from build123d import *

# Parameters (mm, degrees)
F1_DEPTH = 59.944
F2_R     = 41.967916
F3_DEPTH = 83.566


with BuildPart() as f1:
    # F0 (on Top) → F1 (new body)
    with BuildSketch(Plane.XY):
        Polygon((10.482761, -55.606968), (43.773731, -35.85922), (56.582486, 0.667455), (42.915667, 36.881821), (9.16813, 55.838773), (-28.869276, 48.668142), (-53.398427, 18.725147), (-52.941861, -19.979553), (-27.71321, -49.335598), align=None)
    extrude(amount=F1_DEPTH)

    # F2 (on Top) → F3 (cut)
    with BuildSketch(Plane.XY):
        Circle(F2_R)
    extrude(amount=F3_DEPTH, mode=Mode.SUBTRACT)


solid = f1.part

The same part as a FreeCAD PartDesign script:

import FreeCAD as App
import Part
import Sketcher
from FreeCAD import Vector
Q = App.Units.Quantity

doc = App.newDocument("Part")
body = doc.addObject("PartDesign::Body", "Body")

sketch1 = body.newObject("Sketcher::SketchObject", "Sketch")
sketch1.AttachmentSupport = (doc.getObject("XY_Plane"), [""])
sketch1.MapMode = "FlatFace"
sketch1.addGeometry([
    Part.LineSegment(Vector(10.482761, -55.606968, 0), Vector(43.773731, -35.85922, 0)),
    Part.LineSegment(Vector(43.773731, -35.85922, 0), Vector(56.582486, 0.667455, 0)),
    Part.LineSegment(Vector(56.582486, 0.667455, 0), Vector(42.915667, 36.881821, 0)),
    Part.LineSegment(Vector(42.915667, 36.881821, 0), Vector(9.16813, 55.838773, 0)),
    Part.LineSegment(Vector(9.16813, 55.838773, 0), Vector(-28.869276, 48.668142, 0)),
    Part.LineSegment(Vector(-28.869276, 48.668142, 0), Vector(-53.398427, 18.725147, 0)),
    Part.LineSegment(Vector(-53.398427, 18.725147, 0), Vector(-52.941861, -19.979553, 0)),
    Part.LineSegment(Vector(-52.941861, -19.979553, 0), Vector(-27.71321, -49.335598, 0)),
    Part.LineSegment(Vector(-27.71321, -49.335598, 0), Vector(10.482761, -55.606968, 0)),
], False)
sketch1.addConstraint([
    Sketcher.Constraint("Coincident", 0, 2, 1, 1),
    Sketcher.Constraint("Coincident", 1, 2, 2, 1),
    Sketcher.Constraint("Coincident", 2, 2, 3, 1),
    Sketcher.Constraint("Coincident", 3, 2, 4, 1),
    Sketcher.Constraint("Coincident", 4, 2, 5, 1),
    Sketcher.Constraint("Coincident", 5, 2, 6, 1),
    Sketcher.Constraint("Coincident", 6, 2, 7, 1),
    Sketcher.Constraint("Coincident", 7, 2, 8, 1),
    Sketcher.Constraint("Coincident", 8, 2, 0, 1),
    Sketcher.Constraint("DistanceX", 3, 2, 0, 2, Q("34.605601 mm")),
    Sketcher.Constraint("DistanceY", 6, 2, 5, 2, Q("38.7047 mm")),
    Sketcher.Constraint("Distance", 1, Q("38.707392 mm")),
    Sketcher.Constraint("DistanceX", -1, 1, 0, 2, Q("43.773731 mm")),
    Sketcher.Constraint("DistanceY", 0, 2, -1, 1, Q("35.85922 mm")),
    Sketcher.Constraint("DistanceY", -1, 1, 2, 2, Q("36.881821 mm")),
    Sketcher.Constraint("DistanceX", 6, 2, -1, 1, Q("52.941861 mm")),
    Sketcher.Constraint("DistanceX", 7, 2, -1, 1, Q("27.71321 mm")),
    Sketcher.Constraint("DistanceX", -1, 1, 8, 2, Q("10.482761 mm")),
    Sketcher.Constraint("DistanceY", 8, 2, -1, 1, Q("55.606968 mm")),
    Sketcher.Constraint("DistanceX", 2, 2, 1, 2, Q("13.666819 mm")),
    Sketcher.Constraint("DistanceY", 1, 2, 3, 2, Q("55.171318 mm")),
    Sketcher.Constraint("DistanceY", 4, 2, 3, 2, Q("7.170631 mm")),
    Sketcher.Constraint("DistanceY", 2, 2, 4, 2, Q("11.786321 mm")),
    Sketcher.Constraint("DistanceX", 5, 2, 4, 2, Q("24.529151 mm")),
    Sketcher.Constraint("DistanceY", 1, 2, 5, 2, Q("18.057692 mm")),
    Sketcher.Constraint("DistanceY", 7, 2, 4, 2, Q("98.00374 mm")),
    Sketcher.Constraint("Distance", 4, Q("38.707392 mm")),
])
pad1 = body.newObject("PartDesign::Pad", "Pad")
pad1.Profile = sketch1
pad1.Length = Q("2.36 in")

sketch2 = body.newObject("Sketcher::SketchObject", "Sketch001")
sketch2.AttachmentSupport = (doc.getObject("XY_Plane"), [""])
sketch2.MapMode = "FlatFace"
sketch2.addGeometry(Part.Circle(Vector(0, 0, 0), Vector(0, 0, 1), 42), False)
sketch2.addConstraint([
    Sketcher.Constraint("Coincident", 0, 3, -1, 1),
    Sketcher.Constraint("Diameter", 0, Q("83.935832 mm")),
])
pocket1 = body.newObject("PartDesign::Pocket", "Pocket")
pocket1.Profile = sketch2
pocket1.Length = Q("3.29 in")
pocket1.Reversed = True

doc.recompute()
